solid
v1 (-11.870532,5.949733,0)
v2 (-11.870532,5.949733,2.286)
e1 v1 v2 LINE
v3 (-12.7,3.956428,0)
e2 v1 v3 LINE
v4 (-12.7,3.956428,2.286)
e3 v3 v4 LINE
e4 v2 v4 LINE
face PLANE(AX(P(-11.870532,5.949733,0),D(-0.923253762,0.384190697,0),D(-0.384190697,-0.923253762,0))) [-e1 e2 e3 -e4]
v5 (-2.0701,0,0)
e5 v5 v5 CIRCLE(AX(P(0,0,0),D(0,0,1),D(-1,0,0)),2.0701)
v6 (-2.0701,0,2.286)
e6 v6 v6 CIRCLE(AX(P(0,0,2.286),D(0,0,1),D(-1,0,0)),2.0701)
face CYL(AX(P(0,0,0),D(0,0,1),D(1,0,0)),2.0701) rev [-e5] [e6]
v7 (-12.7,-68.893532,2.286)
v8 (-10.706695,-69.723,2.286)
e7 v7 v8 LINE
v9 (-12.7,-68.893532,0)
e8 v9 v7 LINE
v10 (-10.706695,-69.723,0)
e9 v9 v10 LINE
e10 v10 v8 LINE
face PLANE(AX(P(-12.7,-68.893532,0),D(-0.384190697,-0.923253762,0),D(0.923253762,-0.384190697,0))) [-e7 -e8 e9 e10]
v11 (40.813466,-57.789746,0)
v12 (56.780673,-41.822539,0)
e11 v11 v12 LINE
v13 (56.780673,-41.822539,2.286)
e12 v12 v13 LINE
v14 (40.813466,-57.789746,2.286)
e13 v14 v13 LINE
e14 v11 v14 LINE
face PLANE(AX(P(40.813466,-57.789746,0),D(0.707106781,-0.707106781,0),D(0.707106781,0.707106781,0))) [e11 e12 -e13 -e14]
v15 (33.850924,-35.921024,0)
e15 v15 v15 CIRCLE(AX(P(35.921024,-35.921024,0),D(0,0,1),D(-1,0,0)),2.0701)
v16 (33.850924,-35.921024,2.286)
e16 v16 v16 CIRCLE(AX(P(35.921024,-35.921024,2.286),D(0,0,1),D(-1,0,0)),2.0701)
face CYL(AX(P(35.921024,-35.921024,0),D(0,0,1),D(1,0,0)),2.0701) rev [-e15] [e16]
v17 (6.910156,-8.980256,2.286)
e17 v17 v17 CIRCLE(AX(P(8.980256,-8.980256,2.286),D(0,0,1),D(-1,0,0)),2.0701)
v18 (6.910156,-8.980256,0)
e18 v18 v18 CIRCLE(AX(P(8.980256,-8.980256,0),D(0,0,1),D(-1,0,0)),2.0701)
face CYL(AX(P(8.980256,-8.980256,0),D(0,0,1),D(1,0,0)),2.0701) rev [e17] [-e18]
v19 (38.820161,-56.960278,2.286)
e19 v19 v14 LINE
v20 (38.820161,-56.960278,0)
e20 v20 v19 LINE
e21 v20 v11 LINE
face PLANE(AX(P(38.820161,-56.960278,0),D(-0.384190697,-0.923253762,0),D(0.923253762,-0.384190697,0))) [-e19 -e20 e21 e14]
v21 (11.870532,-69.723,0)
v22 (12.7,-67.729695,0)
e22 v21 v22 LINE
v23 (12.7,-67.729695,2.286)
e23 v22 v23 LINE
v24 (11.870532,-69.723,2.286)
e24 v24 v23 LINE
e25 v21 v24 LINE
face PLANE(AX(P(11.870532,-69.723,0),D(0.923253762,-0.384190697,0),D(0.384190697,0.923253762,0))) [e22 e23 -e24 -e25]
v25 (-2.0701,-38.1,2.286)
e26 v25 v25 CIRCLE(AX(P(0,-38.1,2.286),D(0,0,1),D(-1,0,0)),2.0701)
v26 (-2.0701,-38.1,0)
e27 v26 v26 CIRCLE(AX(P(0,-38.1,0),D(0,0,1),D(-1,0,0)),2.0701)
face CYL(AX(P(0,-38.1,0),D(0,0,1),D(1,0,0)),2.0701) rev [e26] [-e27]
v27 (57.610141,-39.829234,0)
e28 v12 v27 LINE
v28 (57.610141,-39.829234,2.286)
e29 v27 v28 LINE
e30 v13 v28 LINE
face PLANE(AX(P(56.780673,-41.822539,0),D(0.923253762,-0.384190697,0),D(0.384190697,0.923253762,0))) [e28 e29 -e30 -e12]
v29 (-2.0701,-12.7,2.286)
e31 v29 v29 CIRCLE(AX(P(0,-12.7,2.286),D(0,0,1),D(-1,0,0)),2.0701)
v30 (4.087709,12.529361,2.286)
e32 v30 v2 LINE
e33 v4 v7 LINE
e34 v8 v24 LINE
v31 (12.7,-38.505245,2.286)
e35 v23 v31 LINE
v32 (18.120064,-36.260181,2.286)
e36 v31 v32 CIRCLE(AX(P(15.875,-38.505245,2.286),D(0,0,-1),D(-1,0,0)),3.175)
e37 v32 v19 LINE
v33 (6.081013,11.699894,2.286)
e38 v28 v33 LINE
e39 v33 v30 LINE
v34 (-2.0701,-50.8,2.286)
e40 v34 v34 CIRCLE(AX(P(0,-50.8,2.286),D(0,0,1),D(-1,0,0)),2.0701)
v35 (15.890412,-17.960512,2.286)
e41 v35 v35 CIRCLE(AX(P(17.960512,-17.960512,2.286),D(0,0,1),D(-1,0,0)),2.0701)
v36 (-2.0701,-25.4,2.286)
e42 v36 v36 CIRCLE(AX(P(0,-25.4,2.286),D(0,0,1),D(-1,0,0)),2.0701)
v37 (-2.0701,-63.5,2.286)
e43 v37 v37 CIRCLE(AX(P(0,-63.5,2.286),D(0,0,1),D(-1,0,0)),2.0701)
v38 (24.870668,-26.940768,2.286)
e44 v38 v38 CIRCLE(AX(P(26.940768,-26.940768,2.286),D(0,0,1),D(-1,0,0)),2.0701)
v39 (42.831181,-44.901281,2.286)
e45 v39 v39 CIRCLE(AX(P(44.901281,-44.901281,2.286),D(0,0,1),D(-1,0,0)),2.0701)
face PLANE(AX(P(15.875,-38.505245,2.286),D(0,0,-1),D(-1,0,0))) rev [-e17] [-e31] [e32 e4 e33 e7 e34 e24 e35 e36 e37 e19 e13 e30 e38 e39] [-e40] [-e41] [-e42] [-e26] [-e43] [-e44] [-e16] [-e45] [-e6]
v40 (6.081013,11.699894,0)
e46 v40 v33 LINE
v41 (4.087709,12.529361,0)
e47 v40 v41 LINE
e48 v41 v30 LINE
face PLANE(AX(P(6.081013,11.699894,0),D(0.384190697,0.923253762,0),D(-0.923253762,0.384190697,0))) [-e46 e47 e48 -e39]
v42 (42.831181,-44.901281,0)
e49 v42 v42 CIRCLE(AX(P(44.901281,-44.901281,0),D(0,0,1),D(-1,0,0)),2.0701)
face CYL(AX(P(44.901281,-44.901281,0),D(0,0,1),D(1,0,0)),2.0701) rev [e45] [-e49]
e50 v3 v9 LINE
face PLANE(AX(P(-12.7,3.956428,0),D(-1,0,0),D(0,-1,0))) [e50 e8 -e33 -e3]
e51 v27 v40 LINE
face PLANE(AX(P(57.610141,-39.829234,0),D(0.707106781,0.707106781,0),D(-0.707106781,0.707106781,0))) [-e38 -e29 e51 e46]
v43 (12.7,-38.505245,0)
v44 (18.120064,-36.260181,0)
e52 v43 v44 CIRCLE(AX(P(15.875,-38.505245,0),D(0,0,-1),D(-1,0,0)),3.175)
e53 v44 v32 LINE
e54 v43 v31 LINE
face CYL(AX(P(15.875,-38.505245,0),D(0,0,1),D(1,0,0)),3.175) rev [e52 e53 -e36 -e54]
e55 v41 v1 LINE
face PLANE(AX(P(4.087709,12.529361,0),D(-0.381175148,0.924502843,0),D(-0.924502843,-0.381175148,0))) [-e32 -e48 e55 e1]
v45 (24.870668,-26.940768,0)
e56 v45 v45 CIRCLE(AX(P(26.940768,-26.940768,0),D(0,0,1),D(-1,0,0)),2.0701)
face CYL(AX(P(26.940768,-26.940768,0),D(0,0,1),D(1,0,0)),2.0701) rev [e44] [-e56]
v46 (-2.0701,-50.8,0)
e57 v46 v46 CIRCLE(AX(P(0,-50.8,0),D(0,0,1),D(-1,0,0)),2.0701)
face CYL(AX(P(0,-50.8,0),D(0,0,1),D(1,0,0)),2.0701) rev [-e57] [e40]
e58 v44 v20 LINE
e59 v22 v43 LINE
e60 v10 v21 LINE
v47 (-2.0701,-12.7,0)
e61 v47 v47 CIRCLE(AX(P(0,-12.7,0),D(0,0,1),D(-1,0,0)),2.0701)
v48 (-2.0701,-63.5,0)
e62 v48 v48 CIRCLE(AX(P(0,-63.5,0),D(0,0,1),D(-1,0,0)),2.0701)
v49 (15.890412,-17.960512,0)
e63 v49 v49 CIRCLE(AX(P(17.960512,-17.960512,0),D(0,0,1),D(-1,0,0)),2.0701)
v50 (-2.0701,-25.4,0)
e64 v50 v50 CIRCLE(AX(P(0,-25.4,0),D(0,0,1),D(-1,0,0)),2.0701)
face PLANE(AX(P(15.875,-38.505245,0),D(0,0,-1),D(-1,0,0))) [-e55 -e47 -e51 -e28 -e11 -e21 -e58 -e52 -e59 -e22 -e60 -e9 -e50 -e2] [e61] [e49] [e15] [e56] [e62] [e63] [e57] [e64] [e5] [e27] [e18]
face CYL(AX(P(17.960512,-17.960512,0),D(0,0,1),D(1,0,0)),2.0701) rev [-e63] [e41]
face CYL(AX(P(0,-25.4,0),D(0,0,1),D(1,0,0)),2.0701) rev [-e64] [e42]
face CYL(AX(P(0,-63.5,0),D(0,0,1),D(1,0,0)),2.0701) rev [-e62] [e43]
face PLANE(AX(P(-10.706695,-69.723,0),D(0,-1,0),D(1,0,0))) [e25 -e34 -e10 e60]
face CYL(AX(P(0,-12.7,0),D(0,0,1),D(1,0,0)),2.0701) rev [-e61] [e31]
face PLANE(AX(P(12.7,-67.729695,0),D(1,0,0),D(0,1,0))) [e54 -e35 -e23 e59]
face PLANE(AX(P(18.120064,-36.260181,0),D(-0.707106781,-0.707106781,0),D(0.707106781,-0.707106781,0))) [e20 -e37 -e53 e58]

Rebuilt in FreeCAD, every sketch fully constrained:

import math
import FreeCAD as App
import Part
import Sketcher
from FreeCAD import Vector
Q = App.Units.Quantity

doc = App.newDocument("Part")
body = doc.addObject("PartDesign::Body", "Body")

sketch1 = body.newObject("Sketcher::SketchObject", "Sketch")
sketch1.AttachmentSupport = (doc.getObject("XY_Plane"), [""])
sketch1.MapMode = "FlatFace"
sketch1.AttachmentOffset = App.Placement(Vector(0, 0, 0.09 * 25.4), App.Rotation())
sketch1.addGeometry(Part.LineSegment(Vector(-12.7, 4, 0), Vector(-12.7, -68.9, 0)), False)
sketch1.addGeometry(Part.LineSegment(Vector(-12.7, -68.9, 0), Vector(-10.7, -69.7, 0)), False)
sketch1.addGeometry(Part.LineSegment(Vector(-10.7, -69.7, 0), Vector(11.9, -69.7, 0)), False)
sketch1.addGeometry(Part.LineSegment(Vector(11.9, -69.7, 0), Vector(12.7, -67.7, 0)), False)
sketch1.addGeometry(Part.LineSegment(Vector(12.7, -67.7, 0), Vector(12.7, -38.5, 0)), False)
sketch1.addGeometry(Part.ArcOfCircle(Part.Circle(Vector(15.9, -38.5, 0), Vector(0, 0, 1), 3.2), math.radians(45), math.radians(180)), False)
sketch1.addGeometry(Part.LineSegment(Vector(18.1, -36.3, 0), Vector(38.8, -57, 0)), False)
sketch1.addGeometry(Part.LineSegment(Vector(38.8, -57, 0), Vector(40.8, -57.8, 0)), False)
sketch1.addGeometry(Part.LineSegment(Vector(40.8, -57.8, 0), Vector(56.8, -41.8, 0)), False)
sketch1.addGeometry(Part.LineSegment(Vector(56.8, -41.8, 0), Vector(57.6, -39.8, 0)), False)
sketch1.addGeometry(Part.LineSegment(Vector(57.6, -39.8, 0), Vector(6.1, 11.7, 0)), False)
sketch1.addGeometry(Part.LineSegment(Vector(6.1, 11.7, 0), Vector(4.1, 12.5, 0)), False)
sketch1.addGeometry(Part.LineSegment(Vector(4.1, 12.5, 0), Vector(-11.9, 5.9, 0)), False)
sketch1.addGeometry(Part.LineSegment(Vector(-11.9, 5.9, 0), Vector(-12.7, 4, 0)), False)
sketch1.addGeometry(Part.Circle(Vector(0, -63.5, 0), Vector(0, 0, 1), 2.1), False)
sketch1.addGeometry(Part.Circle(Vector(0, -50.8, 0), Vector(0, 0, 1), 2.1), False)
sketch1.addGeometry(Part.Circle(Vector(0, -38.1, 0), Vector(0, 0, 1), 2.1), False)
sketch1.addGeometry(Part.Circle(Vector(44.9, -44.9, 0), Vector(0, 0, 1), 2.1), False)
sketch1.addGeometry(Part.Circle(Vector(35.9, -35.9, 0), Vector(0, 0, 1), 2.1), False)
sketch1.addGeometry(Part.Circle(Vector(0, -25.4, 0), Vector(0, 0, 1), 2.1), False)
sketch1.addGeometry(Part.Circle(Vector(18, -18, 0), Vector(0, 0, 1), 2.1), False)
sketch1.addGeometry(Part.Circle(Vector(0, -12.7, 0), Vector(0, 0, 1), 2.1), False)
sketch1.addGeometry(Part.Circle(Vector(9, -9, 0), Vector(0, 0, 1), 2.1), False)
sketch1.addGeometry(Part.Circle(Vector(0, 0, 0), Vector(0, 0, 1), 2.1), False)
sketch1.addGeometry(Part.Circle(Vector(26.9, -26.9, 0), Vector(0, 0, 1), 2.1), False)
sketch1.addConstraint(Sketcher.Constraint("Coincident", 0, 2, 1, 1))
sketch1.addConstraint(Sketcher.Constraint("Coincident", 1, 2, 2, 1))
sketch1.addConstraint(Sketcher.Constraint("Coincident", 2, 2, 3, 1))
sketch1.addConstraint(Sketcher.Constraint("Coincident", 3, 2, 4, 1))
sketch1.addConstraint(Sketcher.Constraint("Tangent", 4, 2, 5, 2))
sketch1.addConstraint(Sketcher.Constraint("Tangent", 5, 1, 6, 1))
sketch1.addConstraint(Sketcher.Constraint("Coincident", 6, 2, 7, 1))
sketch1.addConstraint(Sketcher.Constraint("Coincident", 7, 2, 8, 1))
sketch1.addConstraint(Sketcher.Constraint("Coincident", 8, 2, 9, 1))
sketch1.addConstraint(Sketcher.Constraint("Coincident", 9, 2, 10, 1))
sketch1.addConstraint(Sketcher.Constraint("Coincident", 10, 2, 11, 1))
sketch1.addConstraint(Sketcher.Constraint("Coincident", 11, 2, 12, 1))
sketch1.addConstraint(Sketcher.Constraint("Coincident", 12, 2, 13, 1))
sketch1.addConstraint(Sketcher.Constraint("Coincident", 13, 2, 0, 1))
sketch1.addConstraint(Sketcher.Constraint("Vertical", 0))
sketch1.addConstraint(Sketcher.Constraint("Horizontal", 2))
sketch1.addConstraint(Sketcher.Constraint("Vertical", 4))
sketch1.addConstraint(Sketcher.Constraint("Coincident", 23, 3, -1, 1))
sketch1.addConstraint(Sketcher.Constraint("Equal", 14, 15))
sketch1.addConstraint(Sketcher.Constraint("Equal", 15, 16))
sketch1.addConstraint(Sketcher.Constraint("Equal", 16, 17))
sketch1.addConstraint(Sketcher.Constraint("Equal", 17, 18))
sketch1.addConstraint(Sketcher.Constraint("Equal", 18, 19))
sketch1.addConstraint(Sketcher.Constraint("Equal", 19, 20))
sketch1.addConstraint(Sketcher.Constraint("Equal", 20, 21))
sketch1.addConstraint(Sketcher.Constraint("Equal", 21, 22))
sketch1.addConstraint(Sketcher.Constraint("Equal", 22, 23))
sketch1.addConstraint(Sketcher.Constraint("Equal", 23, 24))
sketch1.addConstraint(Sketcher.Constraint("PointOnObject", 14, 3, -2))
sketch1.addConstraint(Sketcher.Constraint("PointOnObject", 15, 3, -2))
sketch1.addConstraint(Sketcher.Constraint("PointOnObject", 16, 3, -2))
sketch1.addConstraint(Sketcher.Constraint("PointOnObject", 19, 3, -2))
sketch1.addConstraint(Sketcher.Constraint("PointOnObject", 21, 3, -2))
sketch1.addConstraint(Sketcher.Constraint("Perpendicular", 1, 3))
sketch1.addConstraint(Sketcher.Constraint("Perpendicular", 3, 7))
sketch1.addConstraint(Sketcher.Constraint("Perpendicular", 6, 8))
sketch1.addConstraint(Sketcher.Constraint("Perpendicular", 7, 9))
sketch1.addConstraint(Sketcher.Constraint("Perpendicular", 8, 10))
sketch1.addConstraint(Sketcher.Constraint("Perpendicular", 9, 11))
sketch1.addConstraint(Sketcher.Constraint("Perpendicular", 11, 13))
sketch1.addConstraint(Sketcher.Constraint("Equal", 1, 3))
sketch1.addConstraint(Sketcher.Constraint("Equal", 3, 7))
sketch1.addConstraint(Sketcher.Constraint("Equal", 7, 9))
sketch1.addConstraint(Sketcher.Constraint("Equal", 9, 11))
sketch1.addConstraint(Sketcher.Constraint("Equal", 11, 13))
sketch1.addConstraint(Sketcher.Constraint("Diameter", 14, Q("0.163 in")))
sketch1.addConstraint(Sketcher.Constraint("DistanceY", 15, 3, -1, 1, Q("2 in")))
sketch1.addConstraint(Sketcher.Constraint("DistanceY", 19, 3, -1, 1, Q("1 in")))
sketch1.addConstraint(Sketcher.Constraint("Angle", 6, Q("-45 deg")))
sketch1.addConstraint(Sketcher.Constraint("Radius", 5, Q("0.125 in")))
sketch1.addConstraint(Sketcher.Constraint("DistanceY", 14, 3, 16, 3, Q("1 in")))
sketch1.addConstraint(Sketcher.Constraint("DistanceY", 16, 3, 21, 3, Q("1 in")))
sketch1.addConstraint(Sketcher.Constraint("DistanceX", 0, 2, 3, 2, Q("1 in")))
sketch1.addConstraint(Sketcher.Constraint("DistanceY", 14, 3, -1, 1, Q("2.5 in")))
sketch1.addConstraint(Sketcher.Constraint("DistanceX", 0, 2, -1, 1, Q("0.5 in")))
sketch1.addConstraint(Sketcher.Constraint("Distance", 1, Q("0.085 in")))
sketch1.addConstraint(Sketcher.Constraint("DistanceY", 1, 2, -1, 1, Q("2.745 in")))
sketch1.addConstraint(Sketcher.Constraint("DistanceY", 0, 2, 0, 1, 72.849961))
sketch1.addConstraint(Sketcher.Constraint("DistanceY", 4, 1, 4, 2, 29.22445))
sketch1.addConstraint(Sketcher.Constraint("DistanceX", 5, 1, 7, 2, 22.693402))
sketch1.addConstraint(Sketcher.Constraint("DistanceX", 10, 2, 20, 3, 11.879499))
sketch1.addConstraint(Sketcher.Constraint("Distance", 6, 29.274358))
sketch1.addConstraint(Sketcher.Constraint("Distance", 8, 22.581041))
sketch1.addConstraint(Sketcher.Constraint("Distance", 10, 72.873191))
sketch1.addConstraint(Sketcher.Constraint("DistanceX", -1, 1, 17, 3, 44.901281))
sketch1.addConstraint(Sketcher.Constraint("DistanceY", 17, 3, -1, 1, 44.901281))
sketch1.addConstraint(Sketcher.Constraint("DistanceX", -1, 1, 24, 3, 26.940768))
sketch1.addConstraint(Sketcher.Constraint("DistanceY", 24, 3, -1, 1, 26.940768))
sketch1.addConstraint(Sketcher.Constraint("DistanceY", 5, 3, 18, 3, 2.584221))
sketch1.addConstraint(Sketcher.Constraint("DistanceY", 5, 3, 22, 3, 29.524989))
sketch1.addConstraint(Sketcher.Constraint("DistanceX", 5, 1, 18, 3, 17.80096))
sketch1.addConstraint(Sketcher.Constraint("DistanceX", 12, 2, 22, 3, 20.850788))
sketch1.addConstraint(Sketcher.Constraint("DistanceY", 20, 3, -1, 1, 17.960512))
pad1 = body.newObject("PartDesign::Pad", "Pad")
pad1.Profile = sketch1
pad1.Length = Q("0.09 in")
pad1.Reversed = True

doc.recompute()
